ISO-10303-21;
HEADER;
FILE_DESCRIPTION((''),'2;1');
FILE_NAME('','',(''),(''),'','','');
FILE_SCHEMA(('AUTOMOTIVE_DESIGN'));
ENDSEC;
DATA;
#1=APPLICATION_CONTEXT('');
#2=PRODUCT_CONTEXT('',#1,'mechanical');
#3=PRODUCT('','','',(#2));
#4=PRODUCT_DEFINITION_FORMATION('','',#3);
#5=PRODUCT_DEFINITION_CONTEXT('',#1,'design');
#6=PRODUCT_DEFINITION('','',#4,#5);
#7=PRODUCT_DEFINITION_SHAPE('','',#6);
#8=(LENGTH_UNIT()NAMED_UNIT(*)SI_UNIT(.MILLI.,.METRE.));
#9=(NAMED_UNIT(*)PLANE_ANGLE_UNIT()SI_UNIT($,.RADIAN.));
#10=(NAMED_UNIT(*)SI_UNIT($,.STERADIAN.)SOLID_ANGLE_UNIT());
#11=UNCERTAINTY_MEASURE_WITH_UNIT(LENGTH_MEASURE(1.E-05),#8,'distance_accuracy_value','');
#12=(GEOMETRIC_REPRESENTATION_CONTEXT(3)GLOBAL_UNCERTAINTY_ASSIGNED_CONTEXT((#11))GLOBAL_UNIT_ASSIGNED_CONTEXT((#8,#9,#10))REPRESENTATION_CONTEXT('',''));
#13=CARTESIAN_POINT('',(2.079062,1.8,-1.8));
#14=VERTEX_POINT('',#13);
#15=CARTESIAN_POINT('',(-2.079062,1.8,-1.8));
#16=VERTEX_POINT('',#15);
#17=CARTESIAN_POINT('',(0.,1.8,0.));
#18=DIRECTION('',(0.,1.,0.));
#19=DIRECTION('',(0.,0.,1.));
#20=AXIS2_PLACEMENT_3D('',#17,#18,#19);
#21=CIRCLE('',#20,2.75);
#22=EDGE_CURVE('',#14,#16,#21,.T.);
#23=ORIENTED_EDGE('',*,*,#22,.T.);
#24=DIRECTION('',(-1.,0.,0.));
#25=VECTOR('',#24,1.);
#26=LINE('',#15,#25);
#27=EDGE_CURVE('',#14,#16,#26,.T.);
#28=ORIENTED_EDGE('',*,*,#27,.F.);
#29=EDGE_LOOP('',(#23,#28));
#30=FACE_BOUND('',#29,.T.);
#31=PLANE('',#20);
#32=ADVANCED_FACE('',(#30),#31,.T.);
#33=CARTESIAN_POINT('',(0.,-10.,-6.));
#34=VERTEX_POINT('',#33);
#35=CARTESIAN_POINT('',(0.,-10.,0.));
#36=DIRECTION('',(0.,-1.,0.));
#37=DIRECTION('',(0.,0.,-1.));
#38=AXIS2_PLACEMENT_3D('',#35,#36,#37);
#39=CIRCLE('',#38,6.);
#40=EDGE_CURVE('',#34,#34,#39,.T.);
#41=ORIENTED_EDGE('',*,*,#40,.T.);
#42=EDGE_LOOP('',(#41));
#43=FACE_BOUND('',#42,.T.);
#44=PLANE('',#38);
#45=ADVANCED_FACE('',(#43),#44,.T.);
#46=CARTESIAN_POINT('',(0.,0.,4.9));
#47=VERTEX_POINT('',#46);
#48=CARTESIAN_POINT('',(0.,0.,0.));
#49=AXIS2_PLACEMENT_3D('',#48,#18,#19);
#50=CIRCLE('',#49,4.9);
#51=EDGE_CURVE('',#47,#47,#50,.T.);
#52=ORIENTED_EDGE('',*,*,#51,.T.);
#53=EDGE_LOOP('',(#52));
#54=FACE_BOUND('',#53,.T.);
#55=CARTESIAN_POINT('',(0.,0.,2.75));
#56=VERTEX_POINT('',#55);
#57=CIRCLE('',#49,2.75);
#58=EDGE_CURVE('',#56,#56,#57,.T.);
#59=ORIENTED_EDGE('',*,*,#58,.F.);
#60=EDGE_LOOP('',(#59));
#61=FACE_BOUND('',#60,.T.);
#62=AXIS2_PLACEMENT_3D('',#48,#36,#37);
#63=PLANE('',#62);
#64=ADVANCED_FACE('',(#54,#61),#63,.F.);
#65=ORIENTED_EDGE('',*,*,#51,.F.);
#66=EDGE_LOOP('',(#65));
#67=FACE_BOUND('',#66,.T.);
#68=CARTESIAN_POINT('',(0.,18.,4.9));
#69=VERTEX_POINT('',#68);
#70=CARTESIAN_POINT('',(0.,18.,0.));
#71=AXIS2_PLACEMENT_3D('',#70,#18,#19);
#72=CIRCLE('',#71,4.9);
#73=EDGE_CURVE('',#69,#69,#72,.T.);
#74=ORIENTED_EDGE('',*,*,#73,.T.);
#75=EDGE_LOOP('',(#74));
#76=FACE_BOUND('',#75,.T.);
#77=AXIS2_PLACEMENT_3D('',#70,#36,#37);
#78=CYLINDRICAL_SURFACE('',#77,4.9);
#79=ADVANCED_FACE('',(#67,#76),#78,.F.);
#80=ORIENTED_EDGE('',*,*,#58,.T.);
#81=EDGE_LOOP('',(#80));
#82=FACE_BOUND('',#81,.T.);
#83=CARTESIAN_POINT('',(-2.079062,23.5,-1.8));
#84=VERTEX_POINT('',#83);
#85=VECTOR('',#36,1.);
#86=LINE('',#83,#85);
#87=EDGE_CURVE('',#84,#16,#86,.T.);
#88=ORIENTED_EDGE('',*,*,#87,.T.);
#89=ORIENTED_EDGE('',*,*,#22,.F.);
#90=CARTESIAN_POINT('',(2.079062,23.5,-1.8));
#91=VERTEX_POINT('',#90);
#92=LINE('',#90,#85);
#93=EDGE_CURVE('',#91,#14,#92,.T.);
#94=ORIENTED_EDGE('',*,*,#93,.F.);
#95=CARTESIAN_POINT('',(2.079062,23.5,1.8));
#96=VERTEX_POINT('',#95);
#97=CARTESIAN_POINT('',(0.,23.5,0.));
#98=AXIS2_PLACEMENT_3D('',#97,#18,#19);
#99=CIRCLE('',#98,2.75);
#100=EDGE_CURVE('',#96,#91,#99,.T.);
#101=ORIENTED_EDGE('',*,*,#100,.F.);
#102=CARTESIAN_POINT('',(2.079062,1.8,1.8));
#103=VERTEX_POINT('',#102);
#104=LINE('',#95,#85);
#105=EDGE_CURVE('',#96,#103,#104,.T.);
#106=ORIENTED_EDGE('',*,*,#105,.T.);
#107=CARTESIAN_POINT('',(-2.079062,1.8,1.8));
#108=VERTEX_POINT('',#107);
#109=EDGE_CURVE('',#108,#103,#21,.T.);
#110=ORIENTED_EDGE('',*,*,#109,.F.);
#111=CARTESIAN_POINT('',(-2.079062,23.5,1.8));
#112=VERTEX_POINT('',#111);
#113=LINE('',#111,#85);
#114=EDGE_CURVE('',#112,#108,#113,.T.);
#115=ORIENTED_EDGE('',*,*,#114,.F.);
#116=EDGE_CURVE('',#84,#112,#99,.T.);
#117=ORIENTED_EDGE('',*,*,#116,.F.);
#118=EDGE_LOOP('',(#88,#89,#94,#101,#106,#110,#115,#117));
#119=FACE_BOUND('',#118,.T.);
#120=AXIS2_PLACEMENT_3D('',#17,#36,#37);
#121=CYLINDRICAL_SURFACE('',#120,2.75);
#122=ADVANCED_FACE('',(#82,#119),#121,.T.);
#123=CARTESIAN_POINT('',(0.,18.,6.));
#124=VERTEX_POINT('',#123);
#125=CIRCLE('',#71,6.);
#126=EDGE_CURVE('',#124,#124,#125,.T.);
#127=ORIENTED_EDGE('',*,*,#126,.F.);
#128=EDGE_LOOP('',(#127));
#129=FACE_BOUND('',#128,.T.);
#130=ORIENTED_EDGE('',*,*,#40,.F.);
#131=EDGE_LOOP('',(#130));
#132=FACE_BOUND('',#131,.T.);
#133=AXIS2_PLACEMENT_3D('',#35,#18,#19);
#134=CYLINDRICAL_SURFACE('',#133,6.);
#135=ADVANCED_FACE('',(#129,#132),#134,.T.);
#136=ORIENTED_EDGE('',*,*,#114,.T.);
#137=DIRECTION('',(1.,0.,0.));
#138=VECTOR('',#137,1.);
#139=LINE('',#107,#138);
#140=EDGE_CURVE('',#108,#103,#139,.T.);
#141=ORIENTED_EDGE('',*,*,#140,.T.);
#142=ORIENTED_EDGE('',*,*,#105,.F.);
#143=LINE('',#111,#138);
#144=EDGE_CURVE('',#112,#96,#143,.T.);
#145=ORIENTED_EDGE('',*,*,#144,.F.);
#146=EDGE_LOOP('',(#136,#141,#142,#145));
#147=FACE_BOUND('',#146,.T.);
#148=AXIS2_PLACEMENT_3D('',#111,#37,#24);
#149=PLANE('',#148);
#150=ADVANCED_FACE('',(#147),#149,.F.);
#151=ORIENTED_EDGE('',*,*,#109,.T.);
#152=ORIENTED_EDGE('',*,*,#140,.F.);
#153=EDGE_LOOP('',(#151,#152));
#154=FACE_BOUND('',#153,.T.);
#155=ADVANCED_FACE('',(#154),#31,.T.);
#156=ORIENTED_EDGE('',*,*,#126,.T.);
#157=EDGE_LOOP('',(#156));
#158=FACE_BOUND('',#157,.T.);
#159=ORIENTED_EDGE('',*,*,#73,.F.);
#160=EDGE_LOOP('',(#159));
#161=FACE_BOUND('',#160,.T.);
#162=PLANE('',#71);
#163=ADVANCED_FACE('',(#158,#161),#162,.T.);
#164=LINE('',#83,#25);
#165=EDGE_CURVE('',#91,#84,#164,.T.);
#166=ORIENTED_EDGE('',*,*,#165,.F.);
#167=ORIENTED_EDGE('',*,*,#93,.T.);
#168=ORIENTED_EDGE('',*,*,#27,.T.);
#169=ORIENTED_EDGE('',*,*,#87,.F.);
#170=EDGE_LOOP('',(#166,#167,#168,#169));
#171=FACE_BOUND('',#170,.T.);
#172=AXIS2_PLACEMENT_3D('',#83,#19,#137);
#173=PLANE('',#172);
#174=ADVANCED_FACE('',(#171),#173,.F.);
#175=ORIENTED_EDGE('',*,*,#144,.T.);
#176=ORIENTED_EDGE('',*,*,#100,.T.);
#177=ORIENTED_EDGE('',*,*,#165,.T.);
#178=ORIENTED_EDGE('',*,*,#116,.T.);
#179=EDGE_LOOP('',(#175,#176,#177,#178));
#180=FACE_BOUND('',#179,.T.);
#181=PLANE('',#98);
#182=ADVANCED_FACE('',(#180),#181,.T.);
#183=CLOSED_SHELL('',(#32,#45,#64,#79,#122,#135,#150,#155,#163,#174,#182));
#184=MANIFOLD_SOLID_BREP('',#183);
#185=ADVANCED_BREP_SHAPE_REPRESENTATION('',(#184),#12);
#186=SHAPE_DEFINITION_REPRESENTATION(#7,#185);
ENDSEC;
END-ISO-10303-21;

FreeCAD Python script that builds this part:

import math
import FreeCAD as App
import Part
import Sketcher

V = App.Vector
Q = App.Units.Quantity

doc = App.newDocument("Part")
body = doc.addObject("PartDesign::Body", "Body")

sketch1 = body.newObject("Sketcher::SketchObject", "Sketch")
sketch1.AttachmentSupport = (doc.getObject("XZ_Plane"), [""])
sketch1.MapMode = "FlatFace"
sketch1.addGeometry(Part.Circle(V(0, 0, 0), V(0, 0, 1), 2.75), False)
sketch1.addConstraint(Sketcher.Constraint("Coincident", 0, 3, -1, 1))
sketch1.addConstraint(Sketcher.Constraint("Diameter", 0, Q("5.5 mm")))
pad1 = body.newObject("PartDesign::Pad", "Pad")
pad1.Profile = sketch1
pad1.Length = 1.8
pad1.Reversed = True

sketch2 = body.newObject("Sketcher::SketchObject", "Sketch001")
sketch2.AttachmentSupport = (doc.getObject("XZ_Plane"), [""])
sketch2.MapMode = "FlatFace"
sketch2.AttachmentOffset = App.Placement(V(0, 0, -1.8), App.Rotation())
sketch2.addGeometry(Part.LineSegment(V(2.079062, -1.8, 0), V(-2.079062, -1.8, 0)), False)
sketch2.addGeometry(Part.ArcOfCircle(Part.Circle(V(0, 0, 0), V(0, 0, 1), 2.75), math.radians(139.114807), math.radians(220.885193)), False)
sketch2.addGeometry(Part.LineSegment(V(-2.079062, 1.8, 0), V(2.079062, 1.8, 0)), False)
sketch2.addGeometry(Part.ArcOfCircle(Part.Circle(V(0, 0, 0), V(0, 0, 1), 2.75), math.radians(-40.885193), math.radians(40.885193)), False)
sketch2.addConstraint(Sketcher.Constraint("Coincident", 0, 2, 1, 2))
sketch2.addConstraint(Sketcher.Constraint("Coincident", 1, 1, 2, 1))
sketch2.addConstraint(Sketcher.Constraint("Coincident", 2, 2, 3, 2))
sketch2.addConstraint(Sketcher.Constraint("Coincident", 3, 1, 0, 1))
sketch2.addConstraint(Sketcher.Constraint("Horizontal", 0))
sketch2.addConstraint(Sketcher.Constraint("Horizontal", 2))
sketch2.addConstraint(Sketcher.Constraint("Coincident", 1, 3, -1, 1))
sketch2.addConstraint(Sketcher.Constraint("Coincident", 3, 3, -1, 1))
sketch2.addConstraint(Sketcher.Constraint("Equal", 1, 3))
sketch2.addConstraint(Sketcher.Constraint("Vertical", 0, 2, 1, 1))
sketch2.addConstraint(Sketcher.Constraint("Radius", 1, Q("2.75 mm")))
sketch2.addConstraint(Sketcher.Constraint("DistanceY", 0, 2, -1, 1, Q("1.8 mm")))
pad2 = body.newObject("PartDesign::Pad", "Pad001")
pad2.Profile = sketch2
pad2.Length = 21.7
pad2.Reversed = True

sketch3 = body.newObject("Sketcher::SketchObject", "Sketch002")
sketch3.AttachmentSupport = (doc.getObject("XZ_Plane"), [""])
sketch3.MapMode = "FlatFace"
sketch3.addGeometry(Part.Circle(V(0, 0, 0), V(0, 0, 1), 6), False)
sketch3.addConstraint(Sketcher.Constraint("Coincident", 0, 3, -1, 1))
sketch3.addConstraint(Sketcher.Constraint("Diameter", 0, Q("12 mm")))
pad3 = body.newObject("PartDesign::Pad", "Pad002")
pad3.Profile = sketch3
pad3.Length = 10

sketch4 = body.newObject("Sketcher::SketchObject", "Sketch003")
sketch4.AttachmentSupport = (doc.getObject("XZ_Plane"), [""])
sketch4.MapMode = "FlatFace"
sketch4.AttachmentOffset = App.Placement(V(0, 0, -18), App.Rotation())
sketch4.addGeometry(Part.Circle(V(0, 0, 0), V(0, 0, 1), 6), False)
sketch4.addGeometry(Part.Circle(V(0, 0, 0), V(0, 0, 1), 4.9), False)
sketch4.addConstraint(Sketcher.Constraint("Coincident", 0, 3, -1, 1))
sketch4.addConstraint(Sketcher.Constraint("Coincident", 1, 3, -1, 1))
sketch4.addConstraint(Sketcher.Constraint("Diameter", 0, Q("12 mm")))
sketch4.addConstraint(Sketcher.Constraint("Diameter", 1, Q("9.8 mm")))
pad4 = body.newObject("PartDesign::Pad", "Pad003")
pad4.Profile = sketch4
pad4.Length = 18

doc.recompute()
